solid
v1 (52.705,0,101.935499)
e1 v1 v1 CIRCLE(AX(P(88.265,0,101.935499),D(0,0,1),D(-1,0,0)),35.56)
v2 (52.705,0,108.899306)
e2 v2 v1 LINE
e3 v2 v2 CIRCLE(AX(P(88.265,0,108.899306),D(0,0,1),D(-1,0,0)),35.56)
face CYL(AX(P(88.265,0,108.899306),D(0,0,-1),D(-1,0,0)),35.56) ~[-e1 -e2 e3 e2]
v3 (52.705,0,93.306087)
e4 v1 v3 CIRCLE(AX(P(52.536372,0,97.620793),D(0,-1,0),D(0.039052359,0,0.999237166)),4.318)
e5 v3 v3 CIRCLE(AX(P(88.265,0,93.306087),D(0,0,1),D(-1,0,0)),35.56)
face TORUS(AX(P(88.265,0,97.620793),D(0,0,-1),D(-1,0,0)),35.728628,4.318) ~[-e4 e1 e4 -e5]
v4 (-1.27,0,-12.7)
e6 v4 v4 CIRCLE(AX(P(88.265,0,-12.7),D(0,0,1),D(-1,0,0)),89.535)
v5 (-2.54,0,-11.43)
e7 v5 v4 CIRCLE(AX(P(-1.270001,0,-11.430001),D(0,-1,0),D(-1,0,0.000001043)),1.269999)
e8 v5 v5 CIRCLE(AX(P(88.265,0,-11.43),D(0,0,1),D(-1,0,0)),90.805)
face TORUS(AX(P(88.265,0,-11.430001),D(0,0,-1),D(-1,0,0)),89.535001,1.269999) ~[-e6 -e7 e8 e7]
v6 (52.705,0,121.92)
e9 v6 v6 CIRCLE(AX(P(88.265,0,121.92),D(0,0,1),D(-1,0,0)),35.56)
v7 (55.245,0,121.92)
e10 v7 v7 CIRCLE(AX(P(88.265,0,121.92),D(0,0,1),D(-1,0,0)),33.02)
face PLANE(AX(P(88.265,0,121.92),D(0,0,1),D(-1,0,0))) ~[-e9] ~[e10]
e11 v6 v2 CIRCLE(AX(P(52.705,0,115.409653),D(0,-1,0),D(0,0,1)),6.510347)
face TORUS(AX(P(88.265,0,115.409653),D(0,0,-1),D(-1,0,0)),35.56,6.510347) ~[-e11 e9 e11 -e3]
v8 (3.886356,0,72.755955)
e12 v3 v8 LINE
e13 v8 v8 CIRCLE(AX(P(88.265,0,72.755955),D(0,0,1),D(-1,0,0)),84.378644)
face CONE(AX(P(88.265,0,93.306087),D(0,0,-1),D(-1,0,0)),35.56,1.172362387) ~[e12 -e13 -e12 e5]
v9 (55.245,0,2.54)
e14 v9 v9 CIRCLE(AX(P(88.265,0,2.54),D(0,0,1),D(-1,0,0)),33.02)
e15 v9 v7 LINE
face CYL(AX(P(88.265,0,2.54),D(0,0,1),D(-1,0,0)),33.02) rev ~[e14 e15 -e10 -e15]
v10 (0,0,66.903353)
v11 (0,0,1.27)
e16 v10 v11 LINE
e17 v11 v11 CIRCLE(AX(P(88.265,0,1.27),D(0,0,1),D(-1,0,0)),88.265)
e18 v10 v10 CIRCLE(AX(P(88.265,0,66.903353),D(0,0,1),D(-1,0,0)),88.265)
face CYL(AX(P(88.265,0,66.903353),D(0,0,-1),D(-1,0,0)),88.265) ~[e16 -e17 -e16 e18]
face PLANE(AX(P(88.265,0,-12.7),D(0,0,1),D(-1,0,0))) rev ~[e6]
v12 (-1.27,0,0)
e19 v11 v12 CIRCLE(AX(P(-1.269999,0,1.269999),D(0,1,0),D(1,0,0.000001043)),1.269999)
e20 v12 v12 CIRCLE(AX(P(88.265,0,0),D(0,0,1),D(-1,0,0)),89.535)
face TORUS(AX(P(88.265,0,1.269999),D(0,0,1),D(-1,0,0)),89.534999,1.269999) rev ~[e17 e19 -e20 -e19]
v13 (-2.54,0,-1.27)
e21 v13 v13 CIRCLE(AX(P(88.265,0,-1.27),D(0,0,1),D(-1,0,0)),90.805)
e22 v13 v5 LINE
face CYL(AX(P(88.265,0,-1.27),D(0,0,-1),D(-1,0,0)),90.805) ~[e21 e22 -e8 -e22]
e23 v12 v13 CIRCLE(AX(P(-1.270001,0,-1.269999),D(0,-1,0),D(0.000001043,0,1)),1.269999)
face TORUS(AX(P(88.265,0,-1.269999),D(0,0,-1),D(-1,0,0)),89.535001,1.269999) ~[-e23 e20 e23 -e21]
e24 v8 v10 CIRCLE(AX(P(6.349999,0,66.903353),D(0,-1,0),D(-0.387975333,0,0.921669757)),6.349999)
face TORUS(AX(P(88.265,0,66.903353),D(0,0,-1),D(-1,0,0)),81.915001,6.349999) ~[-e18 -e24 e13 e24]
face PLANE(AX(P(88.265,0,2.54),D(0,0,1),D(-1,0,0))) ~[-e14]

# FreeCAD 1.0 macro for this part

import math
import FreeCAD as App
import Part
import Sketcher

V = App.Vector
Q = App.Units.Quantity

doc = App.newDocument("Part")
params = doc.addObject("Spreadsheet::Sheet", "Params")
for row, (alias, value) in enumerate([
    ("sketch1_radius", "0.0499999 in"),
    ("sketch1_radius2", "0.0499999 in"),
    ("sketch1_radius3", "0.0499999 in"),
    ("sketch1_radius4", "0.17 in"),
    ("sketch1_radius5", "0.25 in"),
    ("revolution_angle", "360 deg"),
], start=1):
    params.set(f"A{row}", alias)
    params.set(f"B{row}", "=" + value)
    params.setAlias(f"B{row}", alias)

body = doc.addObject("PartDesign::Body", "Body")

# Sketch on XZ plane
sketch1 = body.newObject("Sketcher::SketchObject", "Sketch")
sketch1.AttachmentSupport = (doc.getObject("XZ_Plane"), [""])
sketch1.MapMode = "FlatFace"
sketch1.addGeometry([
    Part.LineSegment(V(0, 66.903353, 0), V(0, 1.27, 0)),  # 0
    Part.ArcOfCircle(Part.Circle(V(-1.269999, 1.269999, 0), V(0, 0, 1), 1.269999), math.radians(-90.00006), math.radians(0.00006)),  # 1
    Part.ArcOfCircle(Part.Circle(V(-1.270001, -1.269999, 0), V(0, 0, 1), 1.269999), math.radians(89.99994), math.radians(180.00006)),  # 2
    Part.LineSegment(V(-2.54, -1.27, 0), V(-2.54, -11.43, 0)),  # 3
    Part.ArcOfCircle(Part.Circle(V(-1.270001, -11.430001, 0), V(0, 0, 1), 1.269999), math.radians(179.99994), math.radians(270.00006)),  # 4
    Part.LineSegment(V(-1.27, -12.7, 0), V(88.265, -12.7, 0)),  # 5
    Part.LineSegment(V(88.265, -12.7, 0), V(88.265, 2.54, 0)),  # 6
    Part.LineSegment(V(88.265, 2.54, 0), V(55.245, 2.54, 0)),  # 7
    Part.LineSegment(V(55.245, 2.54, 0), V(55.245, 121.92, 0)),  # 8
    Part.LineSegment(V(55.245, 121.92, 0), V(52.705, 121.92, 0)),  # 9
    Part.ArcOfCircle(Part.Circle(V(52.705, 115.409653, 0), V(0, 0, 1), 6.510347), math.radians(90), math.radians(270)),  # 10
    Part.LineSegment(V(52.705, 108.899306, 0), V(52.705, 101.935499, 0)),  # 11
    Part.ArcOfCircle(Part.Circle(V(52.536372, 97.620793, 0), V(0, 0, 1), 4.318), math.radians(87.761896), math.radians(272.238104)),  # 12
    Part.LineSegment(V(52.705, 93.306087, 0), V(3.886356, 72.755955, 0)),  # 13
    Part.ArcOfCircle(Part.Circle(V(6.349999, 66.903353, 0), V(0, 0, 1), 6.349999), math.radians(112.828577), math.radians(180)),  # 14
], False)
sketch1.addGeometry(Part.LineSegment(V(88.265, -12.7, 0), V(88.265, 121.92, 0)), True)  # axis
sketch1.addConstraint([
    Sketcher.Constraint("Coincident", 0, 2, 1, 2),
    Sketcher.Constraint("Coincident", 1, 1, 2, 1),
    Sketcher.Constraint("Coincident", 2, 2, 3, 1),
    Sketcher.Constraint("Coincident", 3, 2, 4, 1),
    Sketcher.Constraint("Coincident", 4, 2, 5, 1),
    Sketcher.Constraint("Coincident", 5, 2, 6, 1),
    Sketcher.Constraint("Coincident", 6, 2, 7, 1),
    Sketcher.Constraint("Coincident", 7, 2, 8, 1),
    Sketcher.Constraint("Coincident", 8, 2, 9, 1),
    Sketcher.Constraint("Coincident", 9, 2, 10, 1),
    Sketcher.Constraint("Coincident", 10, 2, 11, 1),
    Sketcher.Constraint("Coincident", 11, 2, 12, 1),
    Sketcher.Constraint("Coincident", 12, 2, 13, 1),
    Sketcher.Constraint("Coincident", 13, 2, 14, 1),
    Sketcher.Constraint("Coincident", 14, 2, 0, 1),
    Sketcher.Constraint("Vertical", 0),
    Sketcher.Constraint("Vertical", 3),
    Sketcher.Constraint("Horizontal", 5),
    Sketcher.Constraint("Vertical", 6),
    Sketcher.Constraint("Horizontal", 7),
    Sketcher.Constraint("Vertical", 8),
    Sketcher.Constraint("Horizontal", 9),
    Sketcher.Constraint("Vertical", 11),
    Sketcher.Constraint("Vertical", 15),
    Sketcher.Constraint("Coincident", 15, 1, 5, 2),
    Sketcher.Constraint("PointOnObject", 0, 2, -2),
    Sketcher.Constraint("PointOnObject", 1, 1, -1),
    Sketcher.Constraint("Radius", 1, Q("0.0499999 in")),
    Sketcher.Constraint("Radius", 2, Q("0.0499999 in")),
    Sketcher.Constraint("Radius", 4, Q("0.0499999 in")),
    Sketcher.Constraint("Radius", 12, Q("0.17 in")),
    Sketcher.Constraint("Radius", 14, Q("0.25 in")),
    Sketcher.Constraint("DistanceX", 7, 2, 7, 1, Q("1.3 in")),
    Sketcher.Constraint("DistanceX", 9, 2, 9, 1, Q("0.1 in")),
    Sketcher.Constraint("DistanceY", 3, 2, 3, 1, Q("0.4 in")),
    Sketcher.Constraint("DistanceY", 6, 1, 6, 2, Q("0.6 in")),
    Sketcher.Constraint("DistanceY", 8, 1, 8, 2, Q("4.7 in")),
    Sketcher.Constraint("DistanceY", 15, 1, 15, 2, Q("5.3 in")),
    Sketcher.Constraint("DistanceX", 2, 2, -1, 1, Q("0.1 in")),
    Sketcher.Constraint("DistanceY", 4, 2, -1, 1, Q("0.5 in")),
    Sketcher.Constraint("DistanceY", 2, 3, 0, 2, Q("0.0999999 in")),
    Sketcher.Constraint("DistanceX", 1, 1, 14, 3, Q("0.3 in")),
    Sketcher.Constraint("DistanceY", 2, 2, 1, 3, Q("0.0999999 in")),
    Sketcher.Constraint("DistanceX", 10, 3, 8, 2, Q("0.1 in")),
    Sketcher.Constraint("DistanceX", 10, 2, 8, 2, Q("0.1 in")),
    Sketcher.Constraint("DistanceX", 5, 1, 5, 2, Q("3.525 in")),
    Sketcher.Constraint("DistanceX", 4, 2, -1, 1, Q("0.05 in")),
    Sketcher.Constraint("DistanceX", -1, 1, 12, 2, Q("2.075 in")),
    Sketcher.Constraint("Radius", 10, 6.510347),
    Sketcher.Constraint("DistanceY", -1, 1, 11, 2, 101.935499),
    Sketcher.Constraint("DistanceY", 14, 3, 10, 3, 48.5063),
    Sketcher.Constraint("DistanceY", 14, 3, 13, 2, 5.852602),
    Sketcher.Constraint("DistanceY", 0, 2, 0, 1, 65.633353),
    Sketcher.Constraint("DistanceX", -1, 1, 12, 3, 52.536372),
])
sketch1.setExpression("Constraints[27]", "Params.sketch1_radius")
sketch1.setExpression("Constraints[28]", "Params.sketch1_radius2")
sketch1.setExpression("Constraints[29]", "Params.sketch1_radius3")
sketch1.setExpression("Constraints[30]", "Params.sketch1_radius4")
sketch1.setExpression("Constraints[31]", "Params.sketch1_radius5")
revolution = body.newObject("PartDesign::Revolution", "Revolution")
revolution.Profile = sketch1
revolution.ReferenceAxis = (sketch1, ["Axis0"])
revolution.setExpression("Angle", "Params.revolution_angle")

doc.recompute()
